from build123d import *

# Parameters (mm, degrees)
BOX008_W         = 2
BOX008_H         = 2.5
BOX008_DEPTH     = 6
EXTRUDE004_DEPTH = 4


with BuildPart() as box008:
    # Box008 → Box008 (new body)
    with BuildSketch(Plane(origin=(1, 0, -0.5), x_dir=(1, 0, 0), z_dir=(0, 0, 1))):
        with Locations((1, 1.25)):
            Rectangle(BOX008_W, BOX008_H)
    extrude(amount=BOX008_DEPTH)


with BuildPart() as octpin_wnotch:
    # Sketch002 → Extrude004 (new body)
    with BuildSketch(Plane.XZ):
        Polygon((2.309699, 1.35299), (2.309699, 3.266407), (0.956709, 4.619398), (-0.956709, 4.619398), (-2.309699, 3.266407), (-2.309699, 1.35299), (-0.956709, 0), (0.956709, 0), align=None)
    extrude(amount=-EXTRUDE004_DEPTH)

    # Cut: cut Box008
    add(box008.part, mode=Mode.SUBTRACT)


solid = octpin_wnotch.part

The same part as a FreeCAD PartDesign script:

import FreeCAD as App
import Part
import Sketcher
from FreeCAD import Vector
Q = App.Units.Quantity

doc = App.newDocument("Part")
body = doc.addObject("PartDesign::Body", "Body")

# Sketch on XY plane
sketch1 = body.newObject("Sketcher::SketchObject", "Sketch")
sketch1.AttachmentSupport = (doc.getObject("XY_Plane"), [""])
sketch1.MapMode = "FlatFace"
sketch1.AttachmentOffset = App.Placement(Vector(0, 0, -0.5), App.Rotation())
sketch1.addGeometry([
    Part.LineSegment(Vector(1, 2.5, 0), Vector(1, 0, 0)),
    Part.LineSegment(Vector(1, 0, 0), Vector(3, 0, 0)),
    Part.LineSegment(Vector(3, 0, 0), Vector(3, 2.5, 0)),
    Part.LineSegment(Vector(3, 2.5, 0), Vector(1, 2.5, 0)),
], False)
sketch1.addConstraint([
    Sketcher.Constraint("Coincident", 0, 2, 1, 1),
    Sketcher.Constraint("Coincident", 1, 2, 2, 1),
    Sketcher.Constraint("Coincident", 2, 2, 3, 1),
    Sketcher.Constraint("Coincident", 3, 2, 0, 1),
    Sketcher.Constraint("Vertical", 0),
    Sketcher.Constraint("Horizontal", 1),
    Sketcher.Constraint("Vertical", 2),
    Sketcher.Constraint("Horizontal", 3),
    Sketcher.Constraint("PointOnObject", 0, 2, -1),
    Sketcher.Constraint("DistanceX", 1, 1, 1, 2, Q("2 mm")),
    Sketcher.Constraint("DistanceY", 0, 2, 0, 1, Q("2.5 mm")),
    Sketcher.Constraint("DistanceX", -1, 1, 0, 2, Q("1 mm")),
])
pad1 = body.newObject("PartDesign::Pad", "Pad")
pad1.Profile = sketch1
pad1.Length = 6
body2 = doc.addObject("PartDesign::Body", "Body001")

# Sketch on XZ plane
sketch2 = body2.newObject("Sketcher::SketchObject", "Sketch001")
sketch2.AttachmentSupport = (doc.getObject("XZ_Plane001"), [""])
sketch2.MapMode = "FlatFace"
sketch2.addGeometry([
    Part.LineSegment(Vector(2.309699, 1.35299, 0), Vector(2.309699, 3.266407, 0)),  # 0
    Part.LineSegment(Vector(2.309699, 3.266407, 0), Vector(0.956709, 4.619398, 0)),  # 1
    Part.LineSegment(Vector(0.956709, 4.619398, 0), Vector(-0.956709, 4.619398, 0)),  # 2
    Part.LineSegment(Vector(-0.956709, 4.619398, 0), Vector(-2.309699, 3.266407, 0)),  # 3
    Part.LineSegment(Vector(-2.309699, 3.266407, 0), Vector(-2.309699, 1.35299, 0)),  # 4
    Part.LineSegment(Vector(-2.309699, 1.35299, 0), Vector(-0.956709, 0, 0)),  # 5
    Part.LineSegment(Vector(-0.956709, 0, 0), Vector(0.956709, 0, 0)),  # 6
    Part.LineSegment(Vector(0.956709, 0, 0), Vector(2.309699, 1.35299, 0)),  # 7
], False)
sketch2.addConstraint([
    Sketcher.Constraint("Coincident", 0, 2, 1, 1),
    Sketcher.Constraint("Coincident", 1, 2, 2, 1),
    Sketcher.Constraint("Coincident", 2, 2, 3, 1),
    Sketcher.Constraint("Coincident", 3, 2, 4, 1),
    Sketcher.Constraint("Coincident", 4, 2, 5, 1),
    Sketcher.Constraint("Coincident", 5, 2, 6, 1),
    Sketcher.Constraint("Coincident", 6, 2, 7, 1),
    Sketcher.Constraint("Coincident", 7, 2, 0, 1),
    Sketcher.Constraint("Vertical", 0),
    Sketcher.Constraint("Horizontal", 2),
    Sketcher.Constraint("Vertical", 4),
    Sketcher.Constraint("Horizontal", 6),
    Sketcher.Constraint("Symmetric", 5, 2, 6, 2, -1, 1),
    Sketcher.Constraint("Symmetric", 0, 2, 3, 2, -2),
    Sketcher.Constraint("Perpendicular", 1, 3),
    Sketcher.Constraint("Perpendicular", 3, 5),
    Sketcher.Constraint("Perpendicular", 5, 7),
    Sketcher.Constraint("Horizontal", 4, 2, 7, 2),
    Sketcher.Constraint("Vertical", 2, 2, 5, 2),
    Sketcher.Constraint("Equal", 6, 0),
    Sketcher.Constraint("DistanceX", 2, 2, 2, 1, Q("1.913418 mm")),
    Sketcher.Constraint("DistanceX", -1, 1, 0, 2, Q("2.309699 mm")),
])
pad2 = body2.newObject("PartDesign::Pad", "Pad001")
pad2.Profile = sketch2
pad2.Length = 4
pad2.Reversed = True
doc.recompute()

boolean = body2.newObject("PartDesign::Boolean", "Boolean")
boolean.Type = "Cut"
boolean.addObjects([body])

doc.recompute()
